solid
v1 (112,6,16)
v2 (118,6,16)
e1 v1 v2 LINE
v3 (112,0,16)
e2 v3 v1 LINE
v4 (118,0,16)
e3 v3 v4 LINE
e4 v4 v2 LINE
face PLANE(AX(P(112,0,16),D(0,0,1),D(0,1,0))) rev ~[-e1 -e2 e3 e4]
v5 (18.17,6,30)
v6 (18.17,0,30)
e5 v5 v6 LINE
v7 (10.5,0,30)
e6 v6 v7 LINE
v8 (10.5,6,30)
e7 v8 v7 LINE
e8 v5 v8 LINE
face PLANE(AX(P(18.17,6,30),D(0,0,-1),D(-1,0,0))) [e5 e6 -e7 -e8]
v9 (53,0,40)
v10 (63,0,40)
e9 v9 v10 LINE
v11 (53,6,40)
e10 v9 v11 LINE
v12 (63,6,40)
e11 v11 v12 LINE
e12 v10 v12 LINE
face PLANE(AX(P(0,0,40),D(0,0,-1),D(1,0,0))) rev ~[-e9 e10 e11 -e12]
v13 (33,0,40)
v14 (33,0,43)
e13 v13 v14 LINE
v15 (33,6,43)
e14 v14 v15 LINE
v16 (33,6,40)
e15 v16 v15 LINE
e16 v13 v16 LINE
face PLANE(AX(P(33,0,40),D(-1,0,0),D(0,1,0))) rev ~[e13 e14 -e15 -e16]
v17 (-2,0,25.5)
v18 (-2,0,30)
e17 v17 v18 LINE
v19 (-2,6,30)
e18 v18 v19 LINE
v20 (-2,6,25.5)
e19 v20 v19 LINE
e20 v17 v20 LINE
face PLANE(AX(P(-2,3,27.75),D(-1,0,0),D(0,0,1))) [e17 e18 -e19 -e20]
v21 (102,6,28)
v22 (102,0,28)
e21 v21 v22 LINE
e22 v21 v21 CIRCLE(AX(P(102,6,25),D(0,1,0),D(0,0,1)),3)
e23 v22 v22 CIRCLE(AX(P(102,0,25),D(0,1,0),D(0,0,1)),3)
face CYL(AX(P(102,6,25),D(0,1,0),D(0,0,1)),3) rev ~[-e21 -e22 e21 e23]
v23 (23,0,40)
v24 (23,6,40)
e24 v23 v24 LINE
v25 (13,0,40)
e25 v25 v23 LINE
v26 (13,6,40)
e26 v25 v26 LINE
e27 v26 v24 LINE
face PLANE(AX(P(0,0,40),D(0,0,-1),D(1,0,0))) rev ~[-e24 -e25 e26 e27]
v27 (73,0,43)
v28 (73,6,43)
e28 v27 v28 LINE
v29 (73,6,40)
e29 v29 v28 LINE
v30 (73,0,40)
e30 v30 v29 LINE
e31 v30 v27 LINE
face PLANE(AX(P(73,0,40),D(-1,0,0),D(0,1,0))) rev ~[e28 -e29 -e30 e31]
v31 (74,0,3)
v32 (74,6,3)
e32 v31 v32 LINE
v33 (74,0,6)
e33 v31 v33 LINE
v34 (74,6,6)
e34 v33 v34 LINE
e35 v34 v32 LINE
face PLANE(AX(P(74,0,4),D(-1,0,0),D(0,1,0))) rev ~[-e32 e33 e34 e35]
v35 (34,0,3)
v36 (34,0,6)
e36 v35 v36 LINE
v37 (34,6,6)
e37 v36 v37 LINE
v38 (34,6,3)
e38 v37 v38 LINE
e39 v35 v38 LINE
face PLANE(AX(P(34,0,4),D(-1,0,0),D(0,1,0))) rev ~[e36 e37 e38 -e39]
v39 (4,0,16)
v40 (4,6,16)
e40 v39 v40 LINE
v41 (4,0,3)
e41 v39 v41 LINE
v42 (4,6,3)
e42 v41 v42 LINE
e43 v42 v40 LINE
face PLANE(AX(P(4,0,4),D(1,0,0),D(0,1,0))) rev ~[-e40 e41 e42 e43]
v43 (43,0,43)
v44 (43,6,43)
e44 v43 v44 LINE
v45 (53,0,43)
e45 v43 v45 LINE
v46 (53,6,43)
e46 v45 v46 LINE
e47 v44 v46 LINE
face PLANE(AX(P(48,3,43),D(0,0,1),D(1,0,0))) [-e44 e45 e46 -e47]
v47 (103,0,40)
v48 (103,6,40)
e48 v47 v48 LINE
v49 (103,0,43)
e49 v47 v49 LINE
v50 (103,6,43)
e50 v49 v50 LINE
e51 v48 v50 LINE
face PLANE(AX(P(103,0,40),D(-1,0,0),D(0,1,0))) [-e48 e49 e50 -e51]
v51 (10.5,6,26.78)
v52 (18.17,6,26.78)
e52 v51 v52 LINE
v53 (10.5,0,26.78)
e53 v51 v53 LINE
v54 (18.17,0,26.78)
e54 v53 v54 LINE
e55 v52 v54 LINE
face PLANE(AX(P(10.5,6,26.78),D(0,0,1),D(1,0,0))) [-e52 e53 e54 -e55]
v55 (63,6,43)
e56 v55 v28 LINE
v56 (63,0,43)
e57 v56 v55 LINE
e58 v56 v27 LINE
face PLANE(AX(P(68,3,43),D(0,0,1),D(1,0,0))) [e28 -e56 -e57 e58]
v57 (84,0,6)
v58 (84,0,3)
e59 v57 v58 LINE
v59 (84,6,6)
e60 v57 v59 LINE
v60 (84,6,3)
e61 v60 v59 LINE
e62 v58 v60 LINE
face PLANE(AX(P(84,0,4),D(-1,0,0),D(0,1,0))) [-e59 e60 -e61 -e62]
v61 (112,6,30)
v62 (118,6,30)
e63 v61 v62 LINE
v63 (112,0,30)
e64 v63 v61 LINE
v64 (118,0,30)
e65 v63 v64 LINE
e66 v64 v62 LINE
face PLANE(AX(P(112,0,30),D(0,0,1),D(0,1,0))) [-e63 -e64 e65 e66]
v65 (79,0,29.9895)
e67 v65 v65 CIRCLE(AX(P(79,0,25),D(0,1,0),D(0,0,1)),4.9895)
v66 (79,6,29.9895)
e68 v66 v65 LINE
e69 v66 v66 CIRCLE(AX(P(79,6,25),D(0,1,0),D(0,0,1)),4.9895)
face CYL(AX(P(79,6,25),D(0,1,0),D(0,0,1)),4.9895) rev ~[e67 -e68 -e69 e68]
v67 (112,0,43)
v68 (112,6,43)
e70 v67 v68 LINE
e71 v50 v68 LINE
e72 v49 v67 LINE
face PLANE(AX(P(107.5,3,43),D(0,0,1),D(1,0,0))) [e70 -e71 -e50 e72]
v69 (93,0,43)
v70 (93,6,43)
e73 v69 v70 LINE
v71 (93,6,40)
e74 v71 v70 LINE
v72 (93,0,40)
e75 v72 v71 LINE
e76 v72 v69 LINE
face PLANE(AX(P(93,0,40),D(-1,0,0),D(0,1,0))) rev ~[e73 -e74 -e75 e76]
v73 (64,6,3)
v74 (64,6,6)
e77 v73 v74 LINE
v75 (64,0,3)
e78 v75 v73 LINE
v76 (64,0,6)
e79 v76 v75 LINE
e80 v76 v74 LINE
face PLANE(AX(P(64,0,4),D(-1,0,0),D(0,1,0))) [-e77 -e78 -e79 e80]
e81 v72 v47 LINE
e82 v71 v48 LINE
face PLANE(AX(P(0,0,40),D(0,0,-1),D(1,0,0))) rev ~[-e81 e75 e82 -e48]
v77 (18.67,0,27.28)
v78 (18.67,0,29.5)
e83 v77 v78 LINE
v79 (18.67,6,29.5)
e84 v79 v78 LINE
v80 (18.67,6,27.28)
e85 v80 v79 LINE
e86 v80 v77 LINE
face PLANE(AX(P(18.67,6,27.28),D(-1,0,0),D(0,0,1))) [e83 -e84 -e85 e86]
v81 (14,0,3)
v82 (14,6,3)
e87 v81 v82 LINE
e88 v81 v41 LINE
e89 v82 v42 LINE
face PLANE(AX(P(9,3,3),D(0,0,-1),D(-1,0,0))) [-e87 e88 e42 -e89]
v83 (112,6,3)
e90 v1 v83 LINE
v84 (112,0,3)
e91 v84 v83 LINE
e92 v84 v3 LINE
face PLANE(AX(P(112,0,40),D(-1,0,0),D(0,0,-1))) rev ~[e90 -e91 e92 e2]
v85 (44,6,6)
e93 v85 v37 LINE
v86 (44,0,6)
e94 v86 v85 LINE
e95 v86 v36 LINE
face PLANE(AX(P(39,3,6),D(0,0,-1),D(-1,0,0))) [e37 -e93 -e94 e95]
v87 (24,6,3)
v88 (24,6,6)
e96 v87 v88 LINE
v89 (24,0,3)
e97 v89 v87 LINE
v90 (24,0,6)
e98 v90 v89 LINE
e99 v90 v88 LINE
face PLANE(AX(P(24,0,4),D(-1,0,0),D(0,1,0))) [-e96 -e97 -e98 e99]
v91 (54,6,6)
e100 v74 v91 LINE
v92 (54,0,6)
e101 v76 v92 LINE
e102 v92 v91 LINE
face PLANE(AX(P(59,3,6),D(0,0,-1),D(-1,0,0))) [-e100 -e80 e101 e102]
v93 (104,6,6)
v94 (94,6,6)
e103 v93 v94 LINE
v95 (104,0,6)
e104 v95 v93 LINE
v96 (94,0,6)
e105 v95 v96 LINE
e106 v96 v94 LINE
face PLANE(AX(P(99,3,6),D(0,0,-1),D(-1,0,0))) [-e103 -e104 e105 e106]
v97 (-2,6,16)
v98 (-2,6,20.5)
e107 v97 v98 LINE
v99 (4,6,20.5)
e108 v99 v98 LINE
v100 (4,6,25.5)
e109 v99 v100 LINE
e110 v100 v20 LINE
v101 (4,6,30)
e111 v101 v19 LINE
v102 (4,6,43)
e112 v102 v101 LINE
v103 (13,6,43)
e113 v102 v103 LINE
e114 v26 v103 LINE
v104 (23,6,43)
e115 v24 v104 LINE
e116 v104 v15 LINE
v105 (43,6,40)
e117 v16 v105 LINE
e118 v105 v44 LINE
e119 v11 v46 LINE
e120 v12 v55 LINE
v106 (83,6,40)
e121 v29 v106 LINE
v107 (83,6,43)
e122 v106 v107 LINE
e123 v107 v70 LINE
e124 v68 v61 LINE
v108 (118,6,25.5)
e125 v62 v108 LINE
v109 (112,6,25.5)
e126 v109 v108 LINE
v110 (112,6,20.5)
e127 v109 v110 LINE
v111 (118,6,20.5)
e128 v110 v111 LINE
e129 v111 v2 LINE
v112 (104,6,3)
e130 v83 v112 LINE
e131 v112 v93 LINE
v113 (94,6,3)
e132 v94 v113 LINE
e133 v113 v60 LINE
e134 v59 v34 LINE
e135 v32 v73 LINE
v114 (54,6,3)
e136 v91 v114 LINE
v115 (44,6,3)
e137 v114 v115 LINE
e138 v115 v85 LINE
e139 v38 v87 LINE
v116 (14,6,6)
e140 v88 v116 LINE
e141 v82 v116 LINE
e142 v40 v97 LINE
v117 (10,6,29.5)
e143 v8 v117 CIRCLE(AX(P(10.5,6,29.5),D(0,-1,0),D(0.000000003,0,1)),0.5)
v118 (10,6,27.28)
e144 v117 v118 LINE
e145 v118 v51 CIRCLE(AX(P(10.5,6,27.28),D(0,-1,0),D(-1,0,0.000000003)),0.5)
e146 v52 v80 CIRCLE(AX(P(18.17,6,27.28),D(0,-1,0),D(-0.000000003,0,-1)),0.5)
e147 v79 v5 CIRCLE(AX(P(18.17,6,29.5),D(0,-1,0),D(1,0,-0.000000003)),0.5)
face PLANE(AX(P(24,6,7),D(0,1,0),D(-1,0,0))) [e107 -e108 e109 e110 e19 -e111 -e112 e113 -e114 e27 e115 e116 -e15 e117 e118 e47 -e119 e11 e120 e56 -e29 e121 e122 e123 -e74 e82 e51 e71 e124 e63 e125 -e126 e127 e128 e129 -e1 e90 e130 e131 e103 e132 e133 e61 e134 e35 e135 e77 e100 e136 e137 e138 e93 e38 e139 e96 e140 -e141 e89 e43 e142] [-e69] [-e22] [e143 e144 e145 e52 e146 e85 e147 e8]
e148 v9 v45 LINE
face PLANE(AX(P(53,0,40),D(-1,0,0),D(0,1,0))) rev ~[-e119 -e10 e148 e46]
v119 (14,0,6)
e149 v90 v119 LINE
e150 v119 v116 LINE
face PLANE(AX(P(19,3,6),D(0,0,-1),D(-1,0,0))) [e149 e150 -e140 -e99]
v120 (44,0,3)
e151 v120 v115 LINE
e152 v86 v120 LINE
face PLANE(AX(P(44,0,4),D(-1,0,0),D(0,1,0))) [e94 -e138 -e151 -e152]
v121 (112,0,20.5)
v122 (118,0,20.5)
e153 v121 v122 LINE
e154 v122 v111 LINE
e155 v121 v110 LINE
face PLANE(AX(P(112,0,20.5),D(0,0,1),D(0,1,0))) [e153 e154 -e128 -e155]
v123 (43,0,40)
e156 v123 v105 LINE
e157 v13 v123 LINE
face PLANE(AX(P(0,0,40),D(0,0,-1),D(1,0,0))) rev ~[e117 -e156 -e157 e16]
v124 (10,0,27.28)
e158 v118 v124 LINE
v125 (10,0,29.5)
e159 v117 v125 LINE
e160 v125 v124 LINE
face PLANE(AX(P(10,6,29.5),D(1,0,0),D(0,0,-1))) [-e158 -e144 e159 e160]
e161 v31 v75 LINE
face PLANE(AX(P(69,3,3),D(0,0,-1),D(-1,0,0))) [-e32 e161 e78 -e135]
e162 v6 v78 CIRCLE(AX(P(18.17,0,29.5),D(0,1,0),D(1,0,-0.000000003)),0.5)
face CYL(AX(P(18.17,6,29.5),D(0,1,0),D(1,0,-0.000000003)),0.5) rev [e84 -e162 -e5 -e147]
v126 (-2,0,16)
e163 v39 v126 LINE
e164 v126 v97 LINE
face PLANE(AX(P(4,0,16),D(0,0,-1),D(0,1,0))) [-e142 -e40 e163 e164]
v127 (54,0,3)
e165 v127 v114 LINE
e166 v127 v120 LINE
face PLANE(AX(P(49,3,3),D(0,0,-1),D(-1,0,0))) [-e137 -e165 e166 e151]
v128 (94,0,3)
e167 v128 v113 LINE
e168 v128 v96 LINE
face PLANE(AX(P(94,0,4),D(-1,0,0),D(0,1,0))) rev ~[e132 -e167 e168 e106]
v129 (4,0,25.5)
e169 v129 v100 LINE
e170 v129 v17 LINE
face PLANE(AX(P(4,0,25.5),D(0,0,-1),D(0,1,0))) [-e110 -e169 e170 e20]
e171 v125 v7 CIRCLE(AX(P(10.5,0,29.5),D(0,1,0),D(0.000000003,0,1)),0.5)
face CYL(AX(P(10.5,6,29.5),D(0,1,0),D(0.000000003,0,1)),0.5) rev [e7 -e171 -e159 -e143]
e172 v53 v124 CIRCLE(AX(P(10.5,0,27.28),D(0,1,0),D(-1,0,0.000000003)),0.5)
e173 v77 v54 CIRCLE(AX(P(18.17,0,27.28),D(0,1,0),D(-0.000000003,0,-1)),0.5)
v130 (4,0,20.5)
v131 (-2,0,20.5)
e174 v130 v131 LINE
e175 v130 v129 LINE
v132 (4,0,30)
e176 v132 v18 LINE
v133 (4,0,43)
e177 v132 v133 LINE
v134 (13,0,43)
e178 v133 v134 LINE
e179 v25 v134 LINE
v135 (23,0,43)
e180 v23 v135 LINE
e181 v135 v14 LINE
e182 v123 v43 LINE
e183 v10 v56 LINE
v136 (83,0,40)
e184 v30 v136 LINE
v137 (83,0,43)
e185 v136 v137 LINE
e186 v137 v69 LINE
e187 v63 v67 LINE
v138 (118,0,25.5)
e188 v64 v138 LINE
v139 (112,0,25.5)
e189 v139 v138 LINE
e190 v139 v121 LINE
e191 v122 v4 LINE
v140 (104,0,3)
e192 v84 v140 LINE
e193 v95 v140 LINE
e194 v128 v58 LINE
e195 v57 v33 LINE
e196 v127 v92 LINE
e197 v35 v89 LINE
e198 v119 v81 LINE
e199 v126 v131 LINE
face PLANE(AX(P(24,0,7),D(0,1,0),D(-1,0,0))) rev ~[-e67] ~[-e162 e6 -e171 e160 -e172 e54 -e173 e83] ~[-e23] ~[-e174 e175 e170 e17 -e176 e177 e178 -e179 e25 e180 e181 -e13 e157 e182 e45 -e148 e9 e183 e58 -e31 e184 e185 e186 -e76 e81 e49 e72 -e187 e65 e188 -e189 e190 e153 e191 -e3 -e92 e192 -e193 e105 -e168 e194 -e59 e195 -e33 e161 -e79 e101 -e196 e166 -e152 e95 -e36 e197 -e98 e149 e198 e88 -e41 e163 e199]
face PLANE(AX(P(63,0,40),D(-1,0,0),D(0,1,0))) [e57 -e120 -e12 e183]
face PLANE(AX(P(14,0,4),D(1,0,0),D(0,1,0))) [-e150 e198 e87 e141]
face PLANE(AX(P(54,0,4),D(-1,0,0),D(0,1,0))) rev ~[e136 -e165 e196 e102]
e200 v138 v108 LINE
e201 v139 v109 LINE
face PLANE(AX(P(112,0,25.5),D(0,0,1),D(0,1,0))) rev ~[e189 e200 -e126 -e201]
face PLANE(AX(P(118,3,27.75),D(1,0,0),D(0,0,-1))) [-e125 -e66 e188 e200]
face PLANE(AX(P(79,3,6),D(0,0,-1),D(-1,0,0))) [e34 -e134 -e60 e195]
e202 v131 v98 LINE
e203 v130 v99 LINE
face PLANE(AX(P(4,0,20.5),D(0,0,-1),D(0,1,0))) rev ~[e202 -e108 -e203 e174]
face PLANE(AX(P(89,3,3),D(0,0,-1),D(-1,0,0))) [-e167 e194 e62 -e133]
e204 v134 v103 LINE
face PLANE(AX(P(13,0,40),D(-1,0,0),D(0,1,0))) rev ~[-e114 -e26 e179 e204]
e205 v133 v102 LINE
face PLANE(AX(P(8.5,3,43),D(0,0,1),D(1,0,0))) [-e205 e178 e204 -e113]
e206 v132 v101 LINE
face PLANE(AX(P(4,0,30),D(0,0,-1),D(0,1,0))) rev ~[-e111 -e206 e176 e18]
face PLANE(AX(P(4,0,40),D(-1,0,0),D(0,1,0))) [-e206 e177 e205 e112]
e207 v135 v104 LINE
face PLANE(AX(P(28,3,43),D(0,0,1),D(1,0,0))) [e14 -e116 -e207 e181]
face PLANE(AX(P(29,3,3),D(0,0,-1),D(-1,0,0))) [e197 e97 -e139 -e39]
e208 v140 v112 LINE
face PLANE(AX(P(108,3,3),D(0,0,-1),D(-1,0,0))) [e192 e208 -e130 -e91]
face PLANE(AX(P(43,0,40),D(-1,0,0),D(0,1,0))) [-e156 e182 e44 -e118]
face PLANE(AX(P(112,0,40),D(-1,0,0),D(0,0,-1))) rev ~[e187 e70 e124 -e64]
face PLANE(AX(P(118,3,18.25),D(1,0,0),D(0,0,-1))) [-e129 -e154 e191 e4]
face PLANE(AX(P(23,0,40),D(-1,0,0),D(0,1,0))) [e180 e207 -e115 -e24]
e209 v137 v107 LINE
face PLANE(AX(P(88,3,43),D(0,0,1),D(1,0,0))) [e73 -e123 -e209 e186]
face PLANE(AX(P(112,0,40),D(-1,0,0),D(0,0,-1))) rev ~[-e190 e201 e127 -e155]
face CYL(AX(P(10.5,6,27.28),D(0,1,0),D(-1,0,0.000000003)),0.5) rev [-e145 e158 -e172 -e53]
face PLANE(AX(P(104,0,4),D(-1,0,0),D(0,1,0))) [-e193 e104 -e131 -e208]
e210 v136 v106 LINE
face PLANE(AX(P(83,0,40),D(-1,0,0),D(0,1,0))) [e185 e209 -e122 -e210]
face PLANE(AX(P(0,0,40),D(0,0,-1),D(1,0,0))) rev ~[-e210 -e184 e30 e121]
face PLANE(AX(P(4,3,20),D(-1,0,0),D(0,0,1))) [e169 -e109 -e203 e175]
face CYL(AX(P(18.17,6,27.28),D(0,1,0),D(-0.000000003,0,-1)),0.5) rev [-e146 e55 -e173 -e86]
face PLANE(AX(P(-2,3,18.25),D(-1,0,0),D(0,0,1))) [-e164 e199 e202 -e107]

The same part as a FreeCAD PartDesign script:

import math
import FreeCAD as App
import Part
import Sketcher
from FreeCAD import Vector


def add_polygon(sketch, points):
    """Adds a closed chain of lines whose ends are joined by coincident constraints."""
    first, n = sketch.GeometryCount, len(points)
    for a, b in zip(points, points[1:] + points[:1]):
        sketch.addGeometry(Part.LineSegment(App.Vector(*a, 0), App.Vector(*b, 0)), False)
    for i in range(n):
        sketch.addConstraint(Sketcher.Constraint("Coincident", first + i, 2, first + (i + 1) % n, 1))

doc = App.newDocument("Part")
params = doc.addObject("Spreadsheet::Sheet", "Params")
for row, (alias, value) in enumerate([
    ("sketch1_width", "112 mm"),
    ("sketch1_height", "40 mm"),
    ("pad1_length", "6 mm"),
    ("sketch2_diameter", "6 mm"),
    ("sketch3_radius", "0.5 mm"),
    ("sketch3_width", "7.67 mm"),
    ("sketch3_height", "2.22 mm"),
    ("pocket2_length", "10 mm"),
    ("sketch5_width", "6 mm"),
    ("sketch5_height", "4.5 mm"),
    ("pad2_length", "6 mm"),
    ("sketch6_width", "6 mm"),
    ("sketch6_height", "40 mm"),
    ("pocket4_length", "4 mm"),
    ("sketch7_width", "6 mm"),
    ("sketch7_height", "4.5 mm"),
    ("pad3_length", "6 mm"),
    ("sketch8_width", "9 mm"),
    ("sketch8_width2", "10 mm"),
    ("sketch8_height", "6 mm"),
    ("pad4_length", "3 mm"),
    ("sketch9_width", "108 mm"),
    ("sketch9_height", "6 mm"),
    ("pocket5_length", "2 mm"),
    ("sketch10_width", "108 mm"),
    ("sketch10_height", "6 mm"),
    ("pocket6_length", "2 mm"),
    ("sketch11_width", "10 mm"),
    ("sketch11_height", "6 mm"),
    ("pocket7_length", "3 mm"),
    ("sketch12_width", "10 mm"),
    ("sketch12_width2", "8 mm"),
    ("sketch12_height", "6 mm"),
    ("pad5_length", "1 mm"),
    ("sketch13_width", "10 mm"),
    ("sketch13_height", "6 mm"),
    ("pad6_length", "1 mm"),
], start=1):
    params.set(f"A{row}", alias)
    params.set(f"B{row}", "=" + value)
    params.setAlias(f"B{row}", alias)

body = doc.addObject("PartDesign::Body", "Body")

# Sketch on XZ plane
sketch1 = body.newObject("Sketcher::SketchObject", "Sketch")
sketch1.AttachmentSupport = (doc.getObject("XZ_Plane"), [""])
sketch1.MapMode = "FlatFace"
add_polygon(sketch1, [(0, 0), (0, 40), (112, 40), (112, 0)])  # lines 0-3
sketch1.addConstraint([
    Sketcher.Constraint("Vertical", 0),
    Sketcher.Constraint("Horizontal", 1),
    Sketcher.Constraint("Vertical", 2),
    Sketcher.Constraint("Horizontal", 3),
    Sketcher.Constraint("Coincident", 3, 2, -1, 1),
    Sketcher.Constraint("DistanceX", 1, 1, 1, 2, 112.0),
    Sketcher.Constraint("DistanceY", 0, 1, 0, 2, 40.0),
])
sketch1.setExpression("Constraints[9]", "Params.sketch1_width")
sketch1.setExpression("Constraints[10]", "Params.sketch1_height")
pad1 = body.newObject("PartDesign::Pad", "Pad")
pad1.Profile = sketch1
pad1.setExpression("Length", "Params.pad1_length")
pad1.Reversed = True

# Sketch on XZ plane
sketch2 = body.newObject("Sketcher::SketchObject", "Sketch001")
sketch2.AttachmentSupport = (doc.getObject("XZ_Plane"), [""])
sketch2.MapMode = "FlatFace"
sketch2.AttachmentOffset = App.Placement(Vector(0, 0, -6), App.Rotation())
sketch2.addGeometry(Part.Circle(Vector(102, 25, 0), Vector(0, 0, 1), 3), False)
sketch2.addConstraint([
    Sketcher.Constraint("Diameter", 0, 6.0),
    Sketcher.Constraint("DistanceX", -1, 1, 0, 3, 102.0),
    Sketcher.Constraint("DistanceY", -1, 1, 0, 3, 25.0),
])
sketch2.setExpression("Constraints[0]", "Params.sketch2_diameter")
pocket1 = body.newObject("PartDesign::Pocket", "Pocket")
pocket1.Profile = sketch2
pocket1.Type = "ThroughAll"
pocket1.Reversed = True

# Sketch on XZ plane
sketch3 = body.newObject("Sketcher::SketchObject", "Sketch002")
sketch3.AttachmentSupport = (doc.getObject("XZ_Plane"), [""])
sketch3.MapMode = "FlatFace"
sketch3.AttachmentOffset = App.Placement(Vector(0, 0, -6), App.Rotation())
sketch3.addGeometry([
    Part.LineSegment(Vector(18.17, 26.78, 0), Vector(10.5, 26.78, 0)),  # 0
    Part.ArcOfCircle(Part.Circle(Vector(10.5, 27.28, 0), Vector(0, 0, 1), 0.5), math.radians(180), math.radians(270)),  # 1
    Part.LineSegment(Vector(10, 27.28, 0), Vector(10, 29.5, 0)),  # 2
    Part.ArcOfCircle(Part.Circle(Vector(10.5, 29.5, 0), Vector(0, 0, 1), 0.5), math.radians(90), math.radians(180)),  # 3
    Part.LineSegment(Vector(10.5, 30, 0), Vector(18.17, 30, 0)),  # 4
    Part.ArcOfCircle(Part.Circle(Vector(18.17, 29.5, 0), Vector(0, 0, 1), 0.5), math.radians(0), math.radians(90)),  # 5
    Part.LineSegment(Vector(18.67, 29.5, 0), Vector(18.67, 27.28, 0)),  # 6
    Part.ArcOfCircle(Part.Circle(Vector(18.17, 27.28, 0), Vector(0, 0, 1), 0.5), math.radians(-90), math.radians(0)),  # 7
], False)
sketch3.addConstraint([
    Sketcher.Constraint("Tangent", 0, 2, 1, 2),
    Sketcher.Constraint("Tangent", 1, 1, 2, 1),
    Sketcher.Constraint("Tangent", 2, 2, 3, 2),
    Sketcher.Constraint("Tangent", 3, 1, 4, 1),
    Sketcher.Constraint("Tangent", 4, 2, 5, 2),
    Sketcher.Constraint("Tangent", 5, 1, 6, 1),
    Sketcher.Constraint("Tangent", 6, 2, 7, 2),
    Sketcher.Constraint("Tangent", 7, 1, 0, 1),
    Sketcher.Constraint("Horizontal", 0),
    Sketcher.Constraint("Vertical", 2),
    Sketcher.Constraint("Horizontal", 4),
    Sketcher.Constraint("Vertical", 6),
    Sketcher.Constraint("Equal", 1, 3),
    Sketcher.Constraint("Equal", 3, 5),
    Sketcher.Constraint("Equal", 5, 7),
    Sketcher.Constraint("Radius", 1, 0.5),
    Sketcher.Constraint("DistanceX", -1, 1, 1, 1, 10.0),
    Sketcher.Constraint("DistanceY", -1, 1, 3, 1, 30.0),
    Sketcher.Constraint("DistanceX", 0, 2, 0, 1, 7.67),
    Sketcher.Constraint("DistanceY", 2, 1, 2, 2, 2.22),
])
sketch3.setExpression("Constraints[15]", "Params.sketch3_radius")
sketch3.setExpression("Constraints[18]", "Params.sketch3_width")
sketch3.setExpression("Constraints[19]", "Params.sketch3_height")
pocket2 = body.newObject("PartDesign::Pocket", "Pocket001")
pocket2.Profile = sketch3
pocket2.setExpression("Length", "Params.pocket2_length")
pocket2.Reversed = True

# Sketch on XZ plane
sketch4 = body.newObject("Sketcher::SketchObject", "Sketch003")
sketch4.AttachmentSupport = (doc.getObject("XZ_Plane"), [""])
sketch4.MapMode = "FlatFace"
sketch4.AttachmentOffset = App.Placement(Vector(0, 0, -6), App.Rotation())
sketch4.addGeometry(Part.Circle(Vector(79, 25, 0), Vector(0, 0, 1), 5), False)
sketch4.addConstraint([
    Sketcher.Constraint("Diameter", 0, 9.979),
    Sketcher.Constraint("DistanceX", -1, 1, 0, 3, 79.0),
    Sketcher.Constraint("DistanceY", -1, 1, 0, 3, 25.0),
])
pocket3 = body.newObject("PartDesign::Pocket", "Pocket002")
pocket3.Profile = sketch4
pocket3.Type = "ThroughAll"
pocket3.Reversed = True

# Sketch on YZ plane
sketch5 = body.newObject("Sketcher::SketchObject", "Sketch004")
sketch5.AttachmentSupport = (doc.getObject("YZ_Plane"), [""])
sketch5.MapMode = "FlatFace"
sketch5.AttachmentOffset = App.Placement(Vector(0, 0, 112), App.Rotation())
add_polygon(sketch5, [(6, 30), (0, 30), (0, 25.5), (6, 25.5)])  # lines 0-3
add_polygon(sketch5, [(6, 20.5), (0, 20.5), (0, 16), (6, 16)])  # lines 4-7
sketch5.addConstraint([
    Sketcher.Constraint("Horizontal", 0),
    Sketcher.Constraint("Vertical", 1),
    Sketcher.Constraint("Horizontal", 2),
    Sketcher.Constraint("Vertical", 3),
    Sketcher.Constraint("Horizontal", 4),
    Sketcher.Constraint("Vertical", 5),
    Sketcher.Constraint("Horizontal", 6),
    Sketcher.Constraint("Vertical", 7),
    Sketcher.Constraint("PointOnObject", 0, 2, -2),
    Sketcher.Constraint("PointOnObject", 4, 2, -2),
    Sketcher.Constraint("Vertical", 3, 2, 6, 2),
    Sketcher.Constraint("Equal", 3, 5),
    Sketcher.Constraint("DistanceX", 0, 2, 0, 1, 6.0),
    Sketcher.Constraint("DistanceY", 1, 2, 1, 1, 4.5),
    Sketcher.Constraint("DistanceY", -1, 1, 0, 2, 30.0),
    Sketcher.Constraint("DistanceY", -1, 1, 5, 2, 16.0),
])
sketch5.setExpression("Constraints[20]", "Params.sketch5_width")
sketch5.setExpression("Constraints[21]", "Params.sketch5_height")
pad2 = body.newObject("PartDesign::Pad", "Pad001")
pad2.Profile = sketch5
pad2.setExpression("Length", "Params.pad2_length")

# Sketch on YZ plane
sketch6 = body.newObject("Sketcher::SketchObject", "Sketch005")
sketch6.AttachmentSupport = (doc.getObject("YZ_Plane"), [""])
sketch6.MapMode = "FlatFace"
add_polygon(sketch6, [(6, 0), (0, 0), (0, 40), (6, 40)])  # lines 0-3
sketch6.addConstraint([
    Sketcher.Constraint("Horizontal", 0),
    Sketcher.Constraint("Vertical", 1),
    Sketcher.Constraint("Horizontal", 2),
    Sketcher.Constraint("Vertical", 3),
    Sketcher.Constraint("Coincident", 0, 2, -1, 1),
    Sketcher.Constraint("DistanceX", 0, 2, 0, 1, 6.0),
    Sketcher.Constraint("DistanceY", 1, 1, 1, 2, 40.0),
])
sketch6.setExpression("Constraints[9]", "Params.sketch6_width")
sketch6.setExpression("Constraints[10]", "Params.sketch6_height")
pocket4 = body.newObject("PartDesign::Pocket", "Pocket003")
pocket4.Profile = sketch6
pocket4.setExpression("Length", "Params.pocket4_length")
pocket4.Reversed = True

# Sketch on YZ plane
sketch7 = body.newObject("Sketcher::SketchObject", "Sketch006")
sketch7.AttachmentSupport = (doc.getObject("YZ_Plane"), [""])
sketch7.MapMode = "FlatFace"
sketch7.AttachmentOffset = App.Placement(Vector(0, 0, 4), App.Rotation())
add_polygon(sketch7, [(6, 16), (0, 16), (0, 20.5), (6, 20.5)])  # lines 0-3
add_polygon(sketch7, [(6, 25.5), (0, 25.5), (0, 30), (6, 30)])  # lines 4-7
sketch7.addConstraint([
    Sketcher.Constraint("Horizontal", 0),
    Sketcher.Constraint("Vertical", 1),
    Sketcher.Constraint("Horizontal", 2),
    Sketcher.Constraint("Vertical", 3),
    Sketcher.Constraint("Horizontal", 4),
    Sketcher.Constraint("Vertical", 5),
    Sketcher.Constraint("Horizontal", 6),
    Sketcher.Constraint("Vertical", 7),
    Sketcher.Constraint("PointOnObject", 0, 2, -2),
    Sketcher.Constraint("PointOnObject", 4, 2, -2),
    Sketcher.Constraint("Vertical", 3, 2, 6, 2),
    Sketcher.Constraint("Equal", 3, 5),
    Sketcher.Constraint("DistanceX", 0, 2, 0, 1, 6.0),
    Sketcher.Constraint("DistanceY", 1, 1, 1, 2, 4.5),
    Sketcher.Constraint("DistanceY", -1, 1, 0, 2, 16.0),
    Sketcher.Constraint("DistanceY", -1, 1, 5, 2, 30.0),
])
sketch7.setExpression("Constraints[20]", "Params.sketch7_width")
sketch7.setExpression("Constraints[21]", "Params.sketch7_height")
pad3 = body.newObject("PartDesign::Pad", "Pad002")
pad3.Profile = sketch7
pad3.setExpression("Length", "Params.pad3_length")
pad3.Reversed = True

# Sketch on XY plane
sketch8 = body.newObject("Sketcher::SketchObject", "Sketch007")
sketch8.AttachmentSupport = (doc.getObject("XY_Plane"), [""])
sketch8.MapMode = "FlatFace"
sketch8.AttachmentOffset = App.Placement(Vector(0, 0, 40), App.Rotation())
add_polygon(sketch8, [(4, 6), (4, 0), (13, 0), (13, 6)])  # lines 0-3
add_polygon(sketch8, [(103, 6), (103, 0), (112, 0), (112, 6)])  # lines 4-7
add_polygon(sketch8, [(23, 6), (23, 0), (33, 0), (33, 6)])  # lines 8-11
add_polygon(sketch8, [(43, 6), (43, 0), (53, 0), (53, 6)])  # lines 12-15
add_polygon(sketch8, [(63, 6), (63, 0), (73, 0), (73, 6)])  # lines 16-19
add_polygon(sketch8, [(83, 6), (83, 0), (93, 0), (93, 6)])  # lines 20-23
sketch8.addConstraint([
    Sketcher.Constraint("Vertical", 0),
    Sketcher.Constraint("Horizontal", 1),
    Sketcher.Constraint("Vertical", 2),
    Sketcher.Constraint("Horizontal", 3),
    Sketcher.Constraint("Vertical", 4),
    Sketcher.Constraint("Horizontal", 5),
    Sketcher.Constraint("Vertical", 6),
    Sketcher.Constraint("Horizontal", 7),
    Sketcher.Constraint("Vertical", 8),
    Sketcher.Constraint("Horizontal", 9),
    Sketcher.Constraint("Vertical", 10),
    Sketcher.Constraint("Horizontal", 11),
    Sketcher.Constraint("Vertical", 12),
    Sketcher.Constraint("Horizontal", 13),
    Sketcher.Constraint("Vertical", 14),
    Sketcher.Constraint("Horizontal", 15),
    Sketcher.Constraint("Vertical", 16),
    Sketcher.Constraint("Horizontal", 17),
    Sketcher.Constraint("Vertical", 18),
    Sketcher.Constraint("Horizontal", 19),
    Sketcher.Constraint("Vertical", 20),
    Sketcher.Constraint("Horizontal", 21),
    Sketcher.Constraint("Vertical", 22),
    Sketcher.Constraint("Horizontal", 23),
    Sketcher.Constraint("PointOnObject", 0, 2, -1),
    Sketcher.Constraint("PointOnObject", 4, 2, -1),
    Sketcher.Constraint("PointOnObject", 8, 2, -1),
    Sketcher.Constraint("PointOnObject", 12, 2, -1),
    Sketcher.Constraint("PointOnObject", 16, 2, -1),
    Sketcher.Constraint("PointOnObject", 20, 2, -1),
    Sketcher.Constraint("Horizontal", 3, 2, 6, 2),
    Sketcher.Constraint("Horizontal", 7, 2, 10, 2),
    Sketcher.Constraint("Horizontal", 11, 2, 14, 2),
    Sketcher.Constraint("Horizontal", 15, 2, 18, 2),
    Sketcher.Constraint("Horizontal", 19, 2, 22, 2),
    Sketcher.Constraint("Equal", 3, 5),
    Sketcher.Constraint("Equal", 11, 13),
    Sketcher.Constraint("Equal", 15, 17),
    Sketcher.Constraint("Equal", 19, 21),
    Sketcher.Constraint("DistanceX", 1, 1, 1, 2, 9.0),
    Sketcher.Constraint("DistanceX", 9, 1, 9, 2, 10.0),
    Sketcher.Constraint("DistanceY", 0, 2, 0, 1, 6.0),
    Sketcher.Constraint("DistanceX", -1, 1, 0, 2, 4.0),
    Sketcher.Constraint("DistanceX", -1, 1, 4, 2, 103.0),
    Sketcher.Constraint("DistanceX", -1, 1, 8, 2, 23.0),
    Sketcher.Constraint("DistanceX", -1, 1, 12, 2, 43.0),
    Sketcher.Constraint("DistanceX", -1, 1, 16, 2, 63.0),
    Sketcher.Constraint("DistanceX", -1, 1, 20, 2, 83.0),
])
sketch8.setExpression("Constraints[63]", "Params.sketch8_width")
sketch8.setExpression("Constraints[64]", "Params.sketch8_width2")
sketch8.setExpression("Constraints[65]", "Params.sketch8_height")
pad4 = body.newObject("PartDesign::Pad", "Pad003")
pad4.Profile = sketch8
pad4.setExpression("Length", "Params.pad4_length")

# Sketch on XY plane
sketch9 = body.newObject("Sketcher::SketchObject", "Sketch008")
sketch9.AttachmentSupport = (doc.getObject("XY_Plane"), [""])
sketch9.MapMode = "FlatFace"
add_polygon(sketch9, [(112, 6), (112, 0), (4, 0), (4, 6)])  # lines 0-3
sketch9.addConstraint([
    Sketcher.Constraint("Vertical", 0),
    Sketcher.Constraint("Horizontal", 1),
    Sketcher.Constraint("Vertical", 2),
    Sketcher.Constraint("Horizontal", 3),
    Sketcher.Constraint("PointOnObject", 0, 2, -1),
    Sketcher.Constraint("DistanceX", 1, 2, 1, 1, 108.0),
    Sketcher.Constraint("DistanceY", 0, 2, 0, 1, 6.0),
    Sketcher.Constraint("DistanceX", -1, 1, 0, 2, 112.0),
])
sketch9.setExpression("Constraints[9]", "Params.sketch9_width")
sketch9.setExpression("Constraints[10]", "Params.sketch9_height")
pocket5 = body.newObject("PartDesign::Pocket", "Pocket004")
pocket5.Profile = sketch9
pocket5.setExpression("Length", "Params.pocket5_length")
pocket5.Reversed = True

# Sketch on XY plane
sketch10 = body.newObject("Sketcher::SketchObject", "Sketch009")
sketch10.AttachmentSupport = (doc.getObject("XY_Plane"), [""])
sketch10.MapMode = "FlatFace"
sketch10.AttachmentOffset = App.Placement(Vector(0, 0, 2), App.Rotation())
add_polygon(sketch10, [(112, 6), (112, 0), (4, 0), (4, 6)])  # lines 0-3
sketch10.addConstraint([
    Sketcher.Constraint("Vertical", 0),
    Sketcher.Constraint("Horizontal", 1),
    Sketcher.Constraint("Vertical", 2),
    Sketcher.Constraint("Horizontal", 3),
    Sketcher.Constraint("PointOnObject", 0, 2, -1),
    Sketcher.Constraint("DistanceX", 1, 2, 1, 1, 108.0),
    Sketcher.Constraint("DistanceY", 0, 2, 0, 1, 6.0),
    Sketcher.Constraint("DistanceX", -1, 1, 0, 2, 112.0),
])
sketch10.setExpression("Constraints[9]", "Params.sketch10_width")
sketch10.setExpression("Constraints[10]", "Params.sketch10_height")
pocket6 = body.newObject("PartDesign::Pocket", "Pocket005")
pocket6.Profile = sketch10
pocket6.setExpression("Length", "Params.pocket6_length")
pocket6.Reversed = True

# Sketch on XY plane
sketch11 = body.newObject("Sketcher::SketchObject", "Sketch010")
sketch11.AttachmentSupport = (doc.getObject("XY_Plane"), [""])
sketch11.MapMode = "FlatFace"
sketch11.AttachmentOffset = App.Placement(Vector(0, 0, 4), App.Rotation())
add_polygon(sketch11, [(24, 6), (24, 0), (14, 0), (14, 6)])  # lines 0-3
add_polygon(sketch11, [(44, 6), (44, 0), (34, 0), (34, 6)])  # lines 4-7
add_polygon(sketch11, [(64, 6), (64, 0), (54, 0), (54, 6)])  # lines 8-11
add_polygon(sketch11, [(84, 6), (84, 0), (74, 0), (74, 6)])  # lines 12-15
add_polygon(sketch11, [(104, 6), (104, 0), (94, 0), (94, 6)])  # lines 16-19
sketch11.addConstraint([
    Sketcher.Constraint("Vertical", 0),
    Sketcher.Constraint("Horizontal", 1),
    Sketcher.Constraint("Vertical", 2),
    Sketcher.Constraint("Horizontal", 3),
    Sketcher.Constraint("Vertical", 4),
    Sketcher.Constraint("Horizontal", 5),
    Sketcher.Constraint("Vertical", 6),
    Sketcher.Constraint("Horizontal", 7),
    Sketcher.Constraint("Vertical", 8),
    Sketcher.Constraint("Horizontal", 9),
    Sketcher.Constraint("Vertical", 10),
    Sketcher.Constraint("Horizontal", 11),
    Sketcher.Constraint("Vertical", 12),
    Sketcher.Constraint("Horizontal", 13),
    Sketcher.Constraint("Vertical", 14),
    Sketcher.Constraint("Horizontal", 15),
    Sketcher.Constraint("Vertical", 16),
    Sketcher.Constraint("Horizontal", 17),
    Sketcher.Constraint("Vertical", 18),
    Sketcher.Constraint("Horizontal", 19),
    Sketcher.Constraint("PointOnObject", 0, 2, -1),
    Sketcher.Constraint("PointOnObject", 4, 2, -1),
    Sketcher.Constraint("PointOnObject", 8, 2, -1),
    Sketcher.Constraint("PointOnObject", 12, 2, -1),
    Sketcher.Constraint("PointOnObject", 16, 2, -1),
    Sketcher.Constraint("Horizontal", 3, 2, 6, 2),
    Sketcher.Constraint("Horizontal", 7, 2, 10, 2),
    Sketcher.Constraint("Horizontal", 11, 2, 14, 2),
    Sketcher.Constraint("Horizontal", 15, 2, 18, 2),
    Sketcher.Constraint("Equal", 3, 5),
    Sketcher.Constraint("Equal", 7, 9),
    Sketcher.Constraint("Equal", 11, 13),
    Sketcher.Constraint("Equal", 15, 17),
    Sketcher.Constraint("DistanceX", 1, 2, 1, 1, 10.0),
    Sketcher.Constraint("DistanceY", 0, 2, 0, 1, 6.0),
    Sketcher.Constraint("DistanceX", -1, 1, 0, 2, 24.0),
    Sketcher.Constraint("DistanceX", -1, 1, 4, 2, 44.0),
    Sketcher.Constraint("DistanceX", -1, 1, 8, 2, 64.0),
    Sketcher.Constraint("DistanceX", -1, 1, 12, 2, 84.0),
    Sketcher.Constraint("DistanceX", -1, 1, 16, 2, 104.0),
])
sketch11.setExpression("Constraints[53]", "Params.sketch11_width")
sketch11.setExpression("Constraints[54]", "Params.sketch11_height")
pocket7 = body.newObject("PartDesign::Pocket", "Pocket006")
pocket7.Profile = sketch11
pocket7.setExpression("Length", "Params.pocket7_length")
pocket7.Reversed = True

# Sketch on XY plane
sketch12 = body.newObject("Sketcher::SketchObject", "Sketch011")
sketch12.AttachmentSupport = (doc.getObject("XY_Plane"), [""])
sketch12.MapMode = "FlatFace"
sketch12.AttachmentOffset = App.Placement(Vector(0, 0, 4), App.Rotation())
add_polygon(sketch12, [(14, 6), (14, 0), (4, 0), (4, 6)])  # lines 0-3
add_polygon(sketch12, [(34, 6), (34, 0), (24, 0), (24, 6)])  # lines 4-7
add_polygon(sketch12, [(54, 6), (54, 0), (44, 0), (44, 6)])  # lines 8-11
add_polygon(sketch12, [(74, 6), (74, 0), (64, 0), (64, 6)])  # lines 12-15
add_polygon(sketch12, [(94, 6), (94, 0), (84, 0), (84, 6)])  # lines 16-19
add_polygon(sketch12, [(112, 6), (112, 0), (104, 0), (104, 6)])  # lines 20-23
sketch12.addConstraint([
    Sketcher.Constraint("Vertical", 0),
    Sketcher.Constraint("Horizontal", 1),
    Sketcher.Constraint("Vertical", 2),
    Sketcher.Constraint("Horizontal", 3),
    Sketcher.Constraint("Vertical", 4),
    Sketcher.Constraint("Horizontal", 5),
    Sketcher.Constraint("Vertical", 6),
    Sketcher.Constraint("Horizontal", 7),
    Sketcher.Constraint("Vertical", 8),
    Sketcher.Constraint("Horizontal", 9),
    Sketcher.Constraint("Vertical", 10),
    Sketcher.Constraint("Horizontal", 11),
    Sketcher.Constraint("Vertical", 12),
    Sketcher.Constraint("Horizontal", 13),
    Sketcher.Constraint("Vertical", 14),
    Sketcher.Constraint("Horizontal", 15),
    Sketcher.Constraint("Vertical", 16),
    Sketcher.Constraint("Horizontal", 17),
    Sketcher.Constraint("Vertical", 18),
    Sketcher.Constraint("Horizontal", 19),
    Sketcher.Constraint("Vertical", 20),
    Sketcher.Constraint("Horizontal", 21),
    Sketcher.Constraint("Vertical", 22),
    Sketcher.Constraint("Horizontal", 23),
    Sketcher.Constraint("PointOnObject", 0, 2, -1),
    Sketcher.Constraint("PointOnObject", 4, 2, -1),
    Sketcher.Constraint("PointOnObject", 8, 2, -1),
    Sketcher.Constraint("PointOnObject", 12, 2, -1),
    Sketcher.Constraint("PointOnObject", 16, 2, -1),
    Sketcher.Constraint("PointOnObject", 20, 2, -1),
    Sketcher.Constraint("Horizontal", 3, 2, 6, 2),
    Sketcher.Constraint("Horizontal", 7, 2, 10, 2),
    Sketcher.Constraint("Horizontal", 11, 2, 14, 2),
    Sketcher.Constraint("Horizontal", 15, 2, 18, 2),
    Sketcher.Constraint("Horizontal", 19, 2, 22, 2),
    Sketcher.Constraint("Equal", 3, 5),
    Sketcher.Constraint("Equal", 7, 9),
    Sketcher.Constraint("Equal", 11, 13),
    Sketcher.Constraint("Equal", 15, 17),
    Sketcher.Constraint("DistanceX", 1, 2, 1, 1, 10.0),
    Sketcher.Constraint("DistanceX", 21, 2, 21, 1, 8.0),
    Sketcher.Constraint("DistanceY", 0, 2, 0, 1, 6.0),
    Sketcher.Constraint("DistanceX", -1, 1, 0, 2, 14.0),
    Sketcher.Constraint("DistanceX", -1, 1, 4, 2, 34.0),
    Sketcher.Constraint("DistanceX", -1, 1, 8, 2, 54.0),
    Sketcher.Constraint("DistanceX", -1, 1, 12, 2, 74.0),
    Sketcher.Constraint("DistanceX", -1, 1, 16, 2, 94.0),
    Sketcher.Constraint("DistanceX", -1, 1, 20, 2, 112.0),
])
sketch12.setExpression("Constraints[63]", "Params.sketch12_width")
sketch12.setExpression("Constraints[64]", "Params.sketch12_width2")
sketch12.setExpression("Constraints[65]", "Params.sketch12_height")
pad5 = body.newObject("PartDesign::Pad", "Pad004")
pad5.Profile = sketch12
pad5.setExpression("Length", "Params.pad5_length")
pad5.Reversed = True

# Sketch on XY plane
sketch13 = body.newObject("Sketcher::SketchObject", "Sketch012")
sketch13.AttachmentSupport = (doc.getObject("XY_Plane"), [""])
sketch13.MapMode = "FlatFace"
sketch13.AttachmentOffset = App.Placement(Vector(0, 0, 7), App.Rotation())
add_polygon(sketch13, [(24, 6), (24, 0), (14, 0), (14, 6)])  # lines 0-3
add_polygon(sketch13, [(44, 6), (44, 0), (34, 0), (34, 6)])  # lines 4-7
add_polygon(sketch13, [(64, 6), (64, 0), (54, 0), (54, 6)])  # lines 8-11
add_polygon(sketch13, [(84, 6), (84, 0), (74, 0), (74, 6)])  # lines 12-15
add_polygon(sketch13, [(104, 6), (104, 0), (94, 0), (94, 6)])  # lines 16-19
sketch13.addConstraint([
    Sketcher.Constraint("Vertical", 0),
    Sketcher.Constraint("Horizontal", 1),
    Sketcher.Constraint("Vertical", 2),
    Sketcher.Constraint("Horizontal", 3),
    Sketcher.Constraint("Vertical", 4),
    Sketcher.Constraint("Horizontal", 5),
    Sketcher.Constraint("Vertical", 6),
    Sketcher.Constraint("Horizontal", 7),
    Sketcher.Constraint("Vertical", 8),
    Sketcher.Constraint("Horizontal", 9),
    Sketcher.Constraint("Vertical", 10),
    Sketcher.Constraint("Horizontal", 11),
    Sketcher.Constraint("Vertical", 12),
    Sketcher.Constraint("Horizontal", 13),
    Sketcher.Constraint("Vertical", 14),
    Sketcher.Constraint("Horizontal", 15),
    Sketcher.Constraint("Vertical", 16),
    Sketcher.Constraint("Horizontal", 17),
    Sketcher.Constraint("Vertical", 18),
    Sketcher.Constraint("Horizontal", 19),
    Sketcher.Constraint("PointOnObject", 0, 2, -1),
    Sketcher.Constraint("PointOnObject", 4, 2, -1),
    Sketcher.Constraint("PointOnObject", 8, 2, -1),
    Sketcher.Constraint("PointOnObject", 12, 2, -1),
    Sketcher.Constraint("PointOnObject", 16, 2, -1),
    Sketcher.Constraint("Horizontal", 3, 2, 6, 2),
    Sketcher.Constraint("Horizontal", 7, 2, 10, 2),
    Sketcher.Constraint("Horizontal", 11, 2, 14, 2),
    Sketcher.Constraint("Horizontal", 15, 2, 18, 2),
    Sketcher.Constraint("Equal", 3, 5),
    Sketcher.Constraint("Equal", 7, 9),
    Sketcher.Constraint("Equal", 11, 13),
    Sketcher.Constraint("Equal", 15, 17),
    Sketcher.Constraint("DistanceX", 1, 2, 1, 1, 10.0),
    Sketcher.Constraint("DistanceY", 0, 2, 0, 1, 6.0),
    Sketcher.Constraint("DistanceX", -1, 1, 0, 2, 24.0),
    Sketcher.Constraint("DistanceX", -1, 1, 4, 2, 44.0),
    Sketcher.Constraint("DistanceX", -1, 1, 8, 2, 64.0),
    Sketcher.Constraint("DistanceX", -1, 1, 12, 2, 84.0),
    Sketcher.Constraint("DistanceX", -1, 1, 16, 2, 104.0),
])
sketch13.setExpression("Constraints[53]", "Params.sketch13_width")
sketch13.setExpression("Constraints[54]", "Params.sketch13_height")
pad6 = body.newObject("PartDesign::Pad", "Pad005")
pad6.Profile = sketch13
pad6.setExpression("Length", "Params.pad6_length")
pad6.Reversed = True

doc.recompute()
